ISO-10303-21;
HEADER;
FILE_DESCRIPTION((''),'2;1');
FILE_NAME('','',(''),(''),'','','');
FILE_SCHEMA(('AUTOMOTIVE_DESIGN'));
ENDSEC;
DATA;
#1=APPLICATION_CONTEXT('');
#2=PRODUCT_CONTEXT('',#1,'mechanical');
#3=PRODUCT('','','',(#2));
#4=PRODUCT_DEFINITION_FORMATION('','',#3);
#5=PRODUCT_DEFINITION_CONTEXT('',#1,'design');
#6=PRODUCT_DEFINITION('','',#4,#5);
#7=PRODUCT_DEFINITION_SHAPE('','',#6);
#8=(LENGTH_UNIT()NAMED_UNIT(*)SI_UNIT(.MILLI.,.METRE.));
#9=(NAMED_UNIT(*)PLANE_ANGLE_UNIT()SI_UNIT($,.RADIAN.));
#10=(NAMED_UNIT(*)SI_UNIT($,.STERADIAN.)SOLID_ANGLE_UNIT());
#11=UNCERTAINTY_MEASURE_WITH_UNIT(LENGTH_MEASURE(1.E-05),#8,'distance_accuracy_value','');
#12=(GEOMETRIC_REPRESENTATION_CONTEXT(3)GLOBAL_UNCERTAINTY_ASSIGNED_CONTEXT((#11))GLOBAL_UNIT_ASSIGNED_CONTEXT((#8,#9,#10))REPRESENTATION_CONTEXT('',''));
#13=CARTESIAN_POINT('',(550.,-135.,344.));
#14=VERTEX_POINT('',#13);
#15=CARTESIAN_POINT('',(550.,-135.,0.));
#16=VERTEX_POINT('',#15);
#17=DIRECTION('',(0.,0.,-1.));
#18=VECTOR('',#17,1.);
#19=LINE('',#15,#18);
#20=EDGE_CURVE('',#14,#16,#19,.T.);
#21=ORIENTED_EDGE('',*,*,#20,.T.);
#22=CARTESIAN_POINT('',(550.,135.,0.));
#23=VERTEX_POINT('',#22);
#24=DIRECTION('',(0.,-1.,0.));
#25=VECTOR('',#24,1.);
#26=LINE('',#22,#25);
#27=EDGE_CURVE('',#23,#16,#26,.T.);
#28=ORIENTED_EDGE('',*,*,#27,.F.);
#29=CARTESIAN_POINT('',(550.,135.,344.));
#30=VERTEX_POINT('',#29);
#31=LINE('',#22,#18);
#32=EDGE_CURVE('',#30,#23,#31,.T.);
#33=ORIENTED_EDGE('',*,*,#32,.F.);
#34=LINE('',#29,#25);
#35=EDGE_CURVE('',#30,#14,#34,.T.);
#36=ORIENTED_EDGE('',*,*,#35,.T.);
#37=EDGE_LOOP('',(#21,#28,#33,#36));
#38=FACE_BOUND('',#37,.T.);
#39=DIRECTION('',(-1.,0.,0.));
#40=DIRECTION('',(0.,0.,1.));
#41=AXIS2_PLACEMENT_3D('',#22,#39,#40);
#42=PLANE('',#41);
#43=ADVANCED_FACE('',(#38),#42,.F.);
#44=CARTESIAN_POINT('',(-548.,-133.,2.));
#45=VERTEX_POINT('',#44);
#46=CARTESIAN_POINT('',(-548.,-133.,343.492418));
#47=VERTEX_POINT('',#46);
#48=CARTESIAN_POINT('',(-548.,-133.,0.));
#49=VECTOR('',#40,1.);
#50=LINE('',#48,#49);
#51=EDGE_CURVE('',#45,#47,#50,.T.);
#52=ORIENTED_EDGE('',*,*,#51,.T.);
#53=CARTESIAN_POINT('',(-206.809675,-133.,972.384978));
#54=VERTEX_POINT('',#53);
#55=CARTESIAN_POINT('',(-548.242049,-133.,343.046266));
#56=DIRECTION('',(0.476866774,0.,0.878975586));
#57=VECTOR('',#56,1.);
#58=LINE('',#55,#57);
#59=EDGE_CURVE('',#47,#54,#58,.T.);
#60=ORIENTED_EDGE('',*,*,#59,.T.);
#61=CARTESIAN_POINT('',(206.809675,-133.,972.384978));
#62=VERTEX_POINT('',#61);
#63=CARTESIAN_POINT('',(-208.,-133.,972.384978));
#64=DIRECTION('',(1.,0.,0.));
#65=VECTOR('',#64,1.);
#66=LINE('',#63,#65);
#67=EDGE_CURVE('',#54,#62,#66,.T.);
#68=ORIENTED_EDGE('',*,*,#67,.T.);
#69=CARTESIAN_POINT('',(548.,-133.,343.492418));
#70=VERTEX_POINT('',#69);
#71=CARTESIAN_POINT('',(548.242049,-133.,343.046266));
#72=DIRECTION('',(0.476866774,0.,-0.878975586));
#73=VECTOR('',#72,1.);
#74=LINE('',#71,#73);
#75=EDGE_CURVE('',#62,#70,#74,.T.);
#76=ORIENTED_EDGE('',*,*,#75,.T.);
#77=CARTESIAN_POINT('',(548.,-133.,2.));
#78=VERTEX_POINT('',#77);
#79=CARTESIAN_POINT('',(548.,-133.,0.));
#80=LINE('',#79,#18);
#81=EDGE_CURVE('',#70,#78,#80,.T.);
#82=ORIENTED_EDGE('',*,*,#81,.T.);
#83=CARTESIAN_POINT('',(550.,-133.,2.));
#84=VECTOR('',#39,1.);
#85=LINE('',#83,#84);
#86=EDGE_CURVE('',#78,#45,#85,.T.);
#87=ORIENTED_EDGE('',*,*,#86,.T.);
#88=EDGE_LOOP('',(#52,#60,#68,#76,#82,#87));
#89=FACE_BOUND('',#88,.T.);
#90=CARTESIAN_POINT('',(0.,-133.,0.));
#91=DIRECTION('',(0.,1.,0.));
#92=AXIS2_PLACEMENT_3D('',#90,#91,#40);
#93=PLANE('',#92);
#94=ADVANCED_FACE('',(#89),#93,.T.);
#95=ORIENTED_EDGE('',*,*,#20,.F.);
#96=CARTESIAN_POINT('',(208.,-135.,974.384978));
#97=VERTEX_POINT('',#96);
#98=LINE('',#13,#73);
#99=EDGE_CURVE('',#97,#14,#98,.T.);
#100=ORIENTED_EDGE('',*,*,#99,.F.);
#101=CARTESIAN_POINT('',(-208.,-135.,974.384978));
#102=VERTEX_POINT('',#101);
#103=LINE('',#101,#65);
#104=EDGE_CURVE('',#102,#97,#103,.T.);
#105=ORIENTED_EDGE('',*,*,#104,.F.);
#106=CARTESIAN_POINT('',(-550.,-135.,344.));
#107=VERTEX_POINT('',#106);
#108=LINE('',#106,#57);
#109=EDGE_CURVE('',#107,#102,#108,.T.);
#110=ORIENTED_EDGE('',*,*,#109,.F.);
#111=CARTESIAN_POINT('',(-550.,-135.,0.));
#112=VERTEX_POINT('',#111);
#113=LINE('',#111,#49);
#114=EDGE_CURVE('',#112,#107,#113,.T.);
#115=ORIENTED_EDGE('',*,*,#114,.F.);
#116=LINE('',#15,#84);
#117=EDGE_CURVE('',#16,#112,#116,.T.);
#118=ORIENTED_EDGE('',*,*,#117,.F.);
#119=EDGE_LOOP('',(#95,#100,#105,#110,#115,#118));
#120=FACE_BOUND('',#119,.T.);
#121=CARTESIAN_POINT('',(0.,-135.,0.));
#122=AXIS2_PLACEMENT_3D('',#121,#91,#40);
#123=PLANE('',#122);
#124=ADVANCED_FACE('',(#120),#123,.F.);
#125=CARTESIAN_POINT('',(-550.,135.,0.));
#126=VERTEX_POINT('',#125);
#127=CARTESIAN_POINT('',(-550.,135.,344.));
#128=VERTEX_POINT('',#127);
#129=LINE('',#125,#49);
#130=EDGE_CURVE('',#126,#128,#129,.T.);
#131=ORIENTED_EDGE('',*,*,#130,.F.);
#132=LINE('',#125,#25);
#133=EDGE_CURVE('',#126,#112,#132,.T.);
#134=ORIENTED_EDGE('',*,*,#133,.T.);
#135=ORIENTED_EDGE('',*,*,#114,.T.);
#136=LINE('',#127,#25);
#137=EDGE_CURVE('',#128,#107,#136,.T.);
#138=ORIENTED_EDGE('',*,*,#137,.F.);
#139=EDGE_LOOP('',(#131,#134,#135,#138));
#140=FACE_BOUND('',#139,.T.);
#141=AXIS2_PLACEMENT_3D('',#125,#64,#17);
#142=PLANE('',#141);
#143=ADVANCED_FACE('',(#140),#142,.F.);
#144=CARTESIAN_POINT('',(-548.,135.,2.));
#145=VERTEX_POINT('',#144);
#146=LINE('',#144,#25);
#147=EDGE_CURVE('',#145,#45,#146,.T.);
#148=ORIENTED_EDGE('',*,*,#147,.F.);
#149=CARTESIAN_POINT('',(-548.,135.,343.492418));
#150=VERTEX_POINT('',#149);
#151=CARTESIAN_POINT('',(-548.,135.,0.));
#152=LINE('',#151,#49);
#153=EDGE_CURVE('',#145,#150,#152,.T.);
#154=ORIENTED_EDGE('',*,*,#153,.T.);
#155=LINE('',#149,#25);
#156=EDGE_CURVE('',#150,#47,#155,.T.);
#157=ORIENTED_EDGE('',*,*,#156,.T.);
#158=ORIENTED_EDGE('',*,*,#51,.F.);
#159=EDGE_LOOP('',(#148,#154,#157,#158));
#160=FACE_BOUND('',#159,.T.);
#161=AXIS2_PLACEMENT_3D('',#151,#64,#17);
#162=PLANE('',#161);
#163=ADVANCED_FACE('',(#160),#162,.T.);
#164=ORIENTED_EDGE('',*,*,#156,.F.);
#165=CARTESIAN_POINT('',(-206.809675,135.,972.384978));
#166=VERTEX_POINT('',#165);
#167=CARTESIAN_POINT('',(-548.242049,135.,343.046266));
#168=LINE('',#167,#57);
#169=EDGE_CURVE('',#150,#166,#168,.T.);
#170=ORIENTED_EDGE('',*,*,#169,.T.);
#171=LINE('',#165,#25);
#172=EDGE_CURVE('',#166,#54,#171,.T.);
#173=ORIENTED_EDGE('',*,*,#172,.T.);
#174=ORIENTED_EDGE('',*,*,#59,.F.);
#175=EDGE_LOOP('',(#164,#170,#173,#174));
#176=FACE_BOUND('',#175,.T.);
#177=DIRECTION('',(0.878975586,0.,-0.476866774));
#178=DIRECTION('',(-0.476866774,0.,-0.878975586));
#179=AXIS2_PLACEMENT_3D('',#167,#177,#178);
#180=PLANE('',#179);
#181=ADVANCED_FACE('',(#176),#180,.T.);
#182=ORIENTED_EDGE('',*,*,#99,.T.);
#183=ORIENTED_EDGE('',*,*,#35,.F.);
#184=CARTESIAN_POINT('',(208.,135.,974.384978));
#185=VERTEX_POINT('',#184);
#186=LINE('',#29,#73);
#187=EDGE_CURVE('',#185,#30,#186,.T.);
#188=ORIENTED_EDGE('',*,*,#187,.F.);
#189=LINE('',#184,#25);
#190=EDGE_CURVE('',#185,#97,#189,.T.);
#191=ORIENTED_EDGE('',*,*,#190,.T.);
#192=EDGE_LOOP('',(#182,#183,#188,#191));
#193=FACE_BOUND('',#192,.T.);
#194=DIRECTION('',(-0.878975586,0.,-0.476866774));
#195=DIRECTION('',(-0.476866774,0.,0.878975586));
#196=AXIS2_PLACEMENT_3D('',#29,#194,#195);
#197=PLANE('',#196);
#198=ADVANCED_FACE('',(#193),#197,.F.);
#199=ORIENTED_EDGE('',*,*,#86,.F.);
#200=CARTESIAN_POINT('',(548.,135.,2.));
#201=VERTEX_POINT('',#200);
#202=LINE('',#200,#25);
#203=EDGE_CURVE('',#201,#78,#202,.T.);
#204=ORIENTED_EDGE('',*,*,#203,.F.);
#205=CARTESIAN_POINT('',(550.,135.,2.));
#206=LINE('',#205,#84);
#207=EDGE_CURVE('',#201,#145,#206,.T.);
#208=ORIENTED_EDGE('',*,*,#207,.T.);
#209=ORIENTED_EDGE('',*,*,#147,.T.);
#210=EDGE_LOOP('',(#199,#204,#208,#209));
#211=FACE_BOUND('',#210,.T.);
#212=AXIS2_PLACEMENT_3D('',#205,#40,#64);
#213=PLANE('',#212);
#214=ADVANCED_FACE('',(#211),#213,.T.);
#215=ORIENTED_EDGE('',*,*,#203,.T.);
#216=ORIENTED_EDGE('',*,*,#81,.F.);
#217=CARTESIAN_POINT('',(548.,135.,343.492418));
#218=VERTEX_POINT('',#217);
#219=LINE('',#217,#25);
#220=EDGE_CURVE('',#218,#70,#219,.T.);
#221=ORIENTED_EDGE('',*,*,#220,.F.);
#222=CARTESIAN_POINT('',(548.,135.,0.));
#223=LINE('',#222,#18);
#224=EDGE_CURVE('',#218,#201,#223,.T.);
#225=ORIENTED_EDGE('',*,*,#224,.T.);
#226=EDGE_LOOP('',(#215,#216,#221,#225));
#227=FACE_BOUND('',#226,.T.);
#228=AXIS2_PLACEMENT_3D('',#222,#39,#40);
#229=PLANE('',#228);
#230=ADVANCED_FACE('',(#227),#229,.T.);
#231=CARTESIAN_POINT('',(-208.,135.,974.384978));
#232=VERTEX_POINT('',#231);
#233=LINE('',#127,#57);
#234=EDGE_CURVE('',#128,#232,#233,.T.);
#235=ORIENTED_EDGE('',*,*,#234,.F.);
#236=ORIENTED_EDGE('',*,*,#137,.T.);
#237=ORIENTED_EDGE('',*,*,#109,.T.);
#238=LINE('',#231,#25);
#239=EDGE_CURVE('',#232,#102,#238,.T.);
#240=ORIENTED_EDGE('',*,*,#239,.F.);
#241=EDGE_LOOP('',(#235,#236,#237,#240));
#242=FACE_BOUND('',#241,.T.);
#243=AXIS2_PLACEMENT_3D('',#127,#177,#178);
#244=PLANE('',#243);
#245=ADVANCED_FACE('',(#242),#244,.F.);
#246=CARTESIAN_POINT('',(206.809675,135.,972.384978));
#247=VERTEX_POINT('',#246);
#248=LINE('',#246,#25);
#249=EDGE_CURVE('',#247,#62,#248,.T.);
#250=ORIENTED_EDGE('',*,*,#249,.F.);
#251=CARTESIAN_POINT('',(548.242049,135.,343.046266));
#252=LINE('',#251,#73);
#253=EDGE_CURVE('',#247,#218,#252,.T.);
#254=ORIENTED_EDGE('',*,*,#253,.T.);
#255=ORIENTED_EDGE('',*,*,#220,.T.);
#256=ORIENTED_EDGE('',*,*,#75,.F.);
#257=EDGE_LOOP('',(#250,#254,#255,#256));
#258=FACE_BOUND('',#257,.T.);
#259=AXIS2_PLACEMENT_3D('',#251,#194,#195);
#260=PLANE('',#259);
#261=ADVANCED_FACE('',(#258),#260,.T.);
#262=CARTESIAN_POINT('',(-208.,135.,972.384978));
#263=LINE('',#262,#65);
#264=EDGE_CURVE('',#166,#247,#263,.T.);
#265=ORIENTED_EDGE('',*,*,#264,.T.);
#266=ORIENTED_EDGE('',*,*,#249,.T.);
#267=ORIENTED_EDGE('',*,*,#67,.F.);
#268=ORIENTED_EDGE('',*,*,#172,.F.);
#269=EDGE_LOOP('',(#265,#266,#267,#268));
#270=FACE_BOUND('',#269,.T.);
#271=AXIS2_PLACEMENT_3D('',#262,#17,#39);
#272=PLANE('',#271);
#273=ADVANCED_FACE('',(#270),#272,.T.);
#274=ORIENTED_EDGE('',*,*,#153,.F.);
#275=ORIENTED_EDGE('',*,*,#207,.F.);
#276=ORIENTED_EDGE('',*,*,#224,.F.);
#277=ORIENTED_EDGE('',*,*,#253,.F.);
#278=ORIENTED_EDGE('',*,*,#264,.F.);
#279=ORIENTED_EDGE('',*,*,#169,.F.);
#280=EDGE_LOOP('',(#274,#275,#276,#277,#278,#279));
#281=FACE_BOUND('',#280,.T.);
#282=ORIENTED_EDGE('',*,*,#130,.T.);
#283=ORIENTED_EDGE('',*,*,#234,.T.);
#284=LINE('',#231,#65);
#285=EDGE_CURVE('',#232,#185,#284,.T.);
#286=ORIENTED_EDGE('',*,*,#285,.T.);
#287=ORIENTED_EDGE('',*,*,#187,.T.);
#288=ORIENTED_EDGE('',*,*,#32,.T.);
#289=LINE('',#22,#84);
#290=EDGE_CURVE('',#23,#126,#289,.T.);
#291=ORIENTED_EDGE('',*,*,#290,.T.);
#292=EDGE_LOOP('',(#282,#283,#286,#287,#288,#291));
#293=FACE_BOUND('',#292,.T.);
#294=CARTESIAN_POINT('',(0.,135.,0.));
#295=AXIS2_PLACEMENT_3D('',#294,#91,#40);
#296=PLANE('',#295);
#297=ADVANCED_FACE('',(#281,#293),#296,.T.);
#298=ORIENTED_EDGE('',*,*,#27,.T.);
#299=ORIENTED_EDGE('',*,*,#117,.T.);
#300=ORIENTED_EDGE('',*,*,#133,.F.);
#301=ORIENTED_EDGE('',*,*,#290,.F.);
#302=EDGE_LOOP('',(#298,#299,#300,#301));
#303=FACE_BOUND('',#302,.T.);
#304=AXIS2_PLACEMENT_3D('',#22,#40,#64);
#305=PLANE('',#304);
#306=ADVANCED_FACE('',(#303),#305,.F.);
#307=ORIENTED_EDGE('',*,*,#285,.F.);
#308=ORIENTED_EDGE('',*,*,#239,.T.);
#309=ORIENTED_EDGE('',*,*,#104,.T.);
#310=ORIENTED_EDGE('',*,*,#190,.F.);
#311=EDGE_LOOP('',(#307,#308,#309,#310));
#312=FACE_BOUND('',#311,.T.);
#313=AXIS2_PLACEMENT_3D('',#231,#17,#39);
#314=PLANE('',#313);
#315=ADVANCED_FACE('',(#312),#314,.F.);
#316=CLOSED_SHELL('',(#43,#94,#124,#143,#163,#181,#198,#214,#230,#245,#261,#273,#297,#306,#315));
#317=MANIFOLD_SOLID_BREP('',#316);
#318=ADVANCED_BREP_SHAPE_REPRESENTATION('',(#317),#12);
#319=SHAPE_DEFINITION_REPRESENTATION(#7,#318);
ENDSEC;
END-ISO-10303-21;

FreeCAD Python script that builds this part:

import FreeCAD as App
import Part
import Sketcher

V = App.Vector


def faces_at(feature, points):
    """Names of the faces that lie closest to the given points."""
    faces = feature.Shape.Faces
    near = lambda p: min(range(len(faces)), key=lambda i: faces[i].distToShape(Part.Vertex(*p))[0])
    return sorted({f"Face{near(p) + 1}" for p in points})


def add_polygon(sketch, points):
    """Adds a closed chain of lines whose ends are joined by coincident constraints."""
    first, n = sketch.GeometryCount, len(points)
    for a, b in zip(points, points[1:] + points[:1]):
        sketch.addGeometry(Part.LineSegment(App.Vector(*a, 0), App.Vector(*b, 0)), False)
    for i in range(n):
        sketch.addConstraint(Sketcher.Constraint("Coincident", first + i, 2, first + (i + 1) % n, 1))

doc = App.newDocument("Part")
params = doc.addObject("Spreadsheet::Sheet", "Params")
for row, (alias, value) in enumerate([
    ("sketch1_width", "1100 mm"),
    ("sketch1_width2", "416 mm"),
    ("sketch1_height", "344 mm"),
    ("pad1_length", "270 mm"),
    ("thickness_wall", "2 mm"),
], start=1):
    params.set(f"A{row}", alias)
    params.set(f"B{row}", "=" + value)
    params.setAlias(f"B{row}", alias)

body = doc.addObject("PartDesign::Body", "Body")

# Sketch on XZ plane
sketch1 = body.newObject("Sketcher::SketchObject", "Sketch")
sketch1.AttachmentSupport = (doc.getObject("XZ_Plane"), [""])
sketch1.MapMode = "FlatFace"
add_polygon(sketch1, [(550, 0), (-550, 0), (-550, 344), (-208, 974), (208, 974), (550, 344)])  # lines 0-5
sketch1.addConstraint([
    Sketcher.Constraint("Horizontal", 0),
    Sketcher.Constraint("Vertical", 1),
    Sketcher.Constraint("Horizontal", 3),
    Sketcher.Constraint("Vertical", 5),
    Sketcher.Constraint("Symmetric", 0, 2, 5, 2, -1, 1),
    Sketcher.Constraint("Horizontal", 1, 2, 4, 2),
    Sketcher.Constraint("Equal", 2, 4),
    Sketcher.Constraint("DistanceX", 0, 2, 0, 1, 1100.0),
    Sketcher.Constraint("DistanceX", 3, 1, 3, 2, 416.0),
    Sketcher.Constraint("DistanceY", 1, 1, 1, 2, 344.0),
    Sketcher.Constraint("Distance", 2, 717.181441),
])
sketch1.setExpression("Constraints[13]", "Params.sketch1_width")
sketch1.setExpression("Constraints[14]", "Params.sketch1_width2")
sketch1.setExpression("Constraints[15]", "Params.sketch1_height")
pad1 = body.newObject("PartDesign::Pad", "Pad")
pad1.Profile = sketch1
pad1.setExpression("Length", "Params.pad1_length")
pad1.Midplane = True
doc.recompute()

thickness = body.newObject("PartDesign::Thickness", "Thickness")
thickness.Base = (pad1, faces_at(pad1, [(0, 135, 487.192)]))
thickness.setExpression("Value", "Params.thickness_wall")
thickness.Reversed = True
thickness.Join = "Intersection"

doc.recompute()
